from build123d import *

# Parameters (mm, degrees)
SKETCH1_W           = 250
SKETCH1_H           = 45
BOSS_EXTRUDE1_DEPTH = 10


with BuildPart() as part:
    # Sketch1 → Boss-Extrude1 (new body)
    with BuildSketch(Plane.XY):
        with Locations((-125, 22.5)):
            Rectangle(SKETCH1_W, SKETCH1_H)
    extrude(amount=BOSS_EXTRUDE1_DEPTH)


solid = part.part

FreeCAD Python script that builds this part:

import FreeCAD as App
import Part
import Sketcher
from FreeCAD import Vector

doc = App.newDocument("Part")
body = doc.addObject("PartDesign::Body", "Body")

# Sketch on XY plane
sketch1 = doc.addObject("Sketcher::SketchObject", "Sketch")
body.addObject(sketch1)
sketch1.AttachmentSupport = (doc.XY_Plane, [""])
sketch1.MapMode = "FlatFace"
sketch1.addGeometry([
    Part.LineSegment(Vector(-250, 45, 0), Vector(-250, 0, 0)),
    Part.LineSegment(Vector(-250, 0, 0), Vector(0, 0, 0)),
    Part.LineSegment(Vector(0, 0, 0), Vector(0, 45, 0)),
    Part.LineSegment(Vector(0, 45, 0), Vector(-250, 45, 0)),
], False)
sketch1.addConstraint([
    Sketcher.Constraint("Coincident", 0, 2, 1, 1),
    Sketcher.Constraint("Coincident", 1, 2, 2, 1),
    Sketcher.Constraint("Coincident", 2, 2, 3, 1),
    Sketcher.Constraint("Coincident", 3, 2, 0, 1),
    Sketcher.Constraint("Vertical", 0),
    Sketcher.Constraint("Horizontal", 1),
    Sketcher.Constraint("Vertical", 2),
    Sketcher.Constraint("Horizontal", 3),
    Sketcher.Constraint("Coincident", 1, 2, -1, 1),
    Sketcher.Constraint("DistanceX", 1, 1, 1, 2, 250.0),
    Sketcher.Constraint("DistanceY", 0, 2, 0, 1, 45.0),
])
pad1 = doc.addObject("PartDesign::Pad", "Pad")
body.addObject(pad1)
pad1.Profile = sketch1
pad1.Length = 10

doc.recompute()
